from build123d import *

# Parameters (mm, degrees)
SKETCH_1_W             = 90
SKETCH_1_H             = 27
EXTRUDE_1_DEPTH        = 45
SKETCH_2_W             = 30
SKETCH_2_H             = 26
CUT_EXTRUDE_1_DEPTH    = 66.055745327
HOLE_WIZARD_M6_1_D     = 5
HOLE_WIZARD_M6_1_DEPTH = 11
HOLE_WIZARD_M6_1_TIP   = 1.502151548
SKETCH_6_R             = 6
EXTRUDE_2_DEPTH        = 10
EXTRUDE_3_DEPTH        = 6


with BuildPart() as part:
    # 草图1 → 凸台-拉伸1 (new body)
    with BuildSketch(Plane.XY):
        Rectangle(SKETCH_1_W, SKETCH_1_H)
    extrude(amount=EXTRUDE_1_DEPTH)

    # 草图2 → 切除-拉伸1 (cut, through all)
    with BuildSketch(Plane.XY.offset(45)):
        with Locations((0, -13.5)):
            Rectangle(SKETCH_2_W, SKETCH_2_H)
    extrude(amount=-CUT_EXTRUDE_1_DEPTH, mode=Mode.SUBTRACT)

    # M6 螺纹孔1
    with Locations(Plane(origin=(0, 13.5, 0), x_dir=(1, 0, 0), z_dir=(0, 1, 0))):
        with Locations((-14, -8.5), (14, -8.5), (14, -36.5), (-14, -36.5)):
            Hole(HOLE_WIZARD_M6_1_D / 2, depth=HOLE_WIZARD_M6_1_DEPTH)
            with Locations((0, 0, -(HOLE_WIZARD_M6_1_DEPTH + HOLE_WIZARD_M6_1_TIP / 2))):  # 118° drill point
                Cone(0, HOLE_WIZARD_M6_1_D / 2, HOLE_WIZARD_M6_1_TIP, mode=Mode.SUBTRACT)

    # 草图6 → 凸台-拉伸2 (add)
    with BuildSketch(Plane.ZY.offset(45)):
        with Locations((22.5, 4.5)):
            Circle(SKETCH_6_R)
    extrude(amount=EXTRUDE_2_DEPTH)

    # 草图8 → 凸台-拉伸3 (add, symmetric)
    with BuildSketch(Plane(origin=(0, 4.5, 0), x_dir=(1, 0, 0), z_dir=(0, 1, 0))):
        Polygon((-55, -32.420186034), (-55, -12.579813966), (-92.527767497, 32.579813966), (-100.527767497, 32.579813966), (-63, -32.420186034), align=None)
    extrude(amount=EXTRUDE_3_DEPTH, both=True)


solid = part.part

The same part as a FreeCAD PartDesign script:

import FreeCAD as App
import Part
import Sketcher

V = App.Vector
Q = App.Units.Quantity

doc = App.newDocument("Part")
body = doc.addObject("PartDesign::Body", "Body")

# Sketch on XY plane
sketch1 = body.newObject("Sketcher::SketchObject", "Sketch")
sketch1.AttachmentSupport = (doc.getObject("XY_Plane"), [""])
sketch1.MapMode = "FlatFace"
sketch1.addGeometry([
    Part.LineSegment(V(-45, 13.5, 0), V(-45, -13.5, 0)),
    Part.LineSegment(V(-45, -13.5, 0), V(45, -13.5, 0)),
    Part.LineSegment(V(45, -13.5, 0), V(45, 13.5, 0)),
    Part.LineSegment(V(45, 13.5, 0), V(-45, 13.5, 0)),
], False)
sketch1.addConstraint([
    Sketcher.Constraint("Coincident", 0, 2, 1, 1),
    Sketcher.Constraint("Coincident", 1, 2, 2, 1),
    Sketcher.Constraint("Coincident", 2, 2, 3, 1),
    Sketcher.Constraint("Coincident", 3, 2, 0, 1),
    Sketcher.Constraint("Vertical", 0),
    Sketcher.Constraint("Horizontal", 1),
    Sketcher.Constraint("Vertical", 2),
    Sketcher.Constraint("Horizontal", 3),
    Sketcher.Constraint("Symmetric", 0, 2, 2, 2, -1, 1),
    Sketcher.Constraint("DistanceX", 1, 1, 1, 2, 90.0),
    Sketcher.Constraint("DistanceY", 0, 2, 0, 1, 27.0),
])
pad1 = body.newObject("PartDesign::Pad", "Pad")
pad1.Profile = sketch1
pad1.Length = 45

# Sketch on XY plane
sketch2 = body.newObject("Sketcher::SketchObject", "Sketch001")
sketch2.AttachmentSupport = (doc.getObject("XY_Plane"), [""])
sketch2.MapMode = "FlatFace"
sketch2.AttachmentOffset = App.Placement(V(0, 0, 45), App.Rotation())
sketch2.addGeometry([
    Part.LineSegment(V(-15, -0.5, 0), V(-15, -26.5, 0)),
    Part.LineSegment(V(-15, -26.5, 0), V(15, -26.5, 0)),
    Part.LineSegment(V(15, -26.5, 0), V(15, -0.5, 0)),
    Part.LineSegment(V(15, -0.5, 0), V(-15, -0.5, 0)),
], False)
sketch2.addConstraint([
    Sketcher.Constraint("Coincident", 0, 2, 1, 1),
    Sketcher.Constraint("Coincident", 1, 2, 2, 1),
    Sketcher.Constraint("Coincident", 2, 2, 3, 1),
    Sketcher.Constraint("Coincident", 3, 2, 0, 1),
    Sketcher.Constraint("Vertical", 0),
    Sketcher.Constraint("Horizontal", 1),
    Sketcher.Constraint("Vertical", 2),
    Sketcher.Constraint("Horizontal", 3),
    Sketcher.Constraint("DistanceX", 1, 1, 1, 2, 30.0),
    Sketcher.Constraint("DistanceY", 0, 2, 0, 1, 26.0),
    Sketcher.Constraint("DistanceX", 0, 2, -1, 1, 15.0),
    Sketcher.Constraint("DistanceY", 0, 2, -1, 1, 26.5),
])
pocket1 = body.newObject("PartDesign::Pocket", "Pocket")
pocket1.Profile = sketch2
pocket1.Type = "ThroughAll"

# Sketch on XZ plane
sketch3 = body.newObject("Sketcher::SketchObject", "Sketch002")
sketch3.AttachmentSupport = (doc.getObject("XZ_Plane"), [""])
sketch3.MapMode = "FlatFace"
sketch3.AttachmentOffset = App.Placement(V(0, 0, -13.5), App.Rotation())
sketch3.addGeometry([
    Part.Circle(V(-14, 8.5, 0), V(0, 0, 1), 2.5),
    Part.Circle(V(14, 8.5, 0), V(0, 0, 1), 2.5),
    Part.Circle(V(14, 36.5, 0), V(0, 0, 1), 2.5),
    Part.Circle(V(-14, 36.5, 0), V(0, 0, 1), 2.5),
], False)
sketch3.addConstraint([
    Sketcher.Constraint("Equal", 0, 1),
    Sketcher.Constraint("Equal", 1, 2),
    Sketcher.Constraint("Equal", 2, 3),
    Sketcher.Constraint("Symmetric", 0, 3, 1, 3, -2),
    Sketcher.Constraint("Symmetric", 2, 3, 3, 3, -2),
    Sketcher.Constraint("Vertical", 1, 3, 2, 3),
    Sketcher.Constraint("Diameter", 0, 5.0),
    Sketcher.Constraint("DistanceX", 0, 3, -1, 1, 14.0),
    Sketcher.Constraint("DistanceY", 1, 3, 2, 3, 28.0),
    Sketcher.Constraint("DistanceY", -1, 1, 0, 3, 8.5),
])
doc.recompute()
hole = body.newObject("PartDesign::Hole", "Hole")
hole.Profile = sketch3
hole.ThreadType = "None"
hole.Diameter = 5
hole.DepthType = "Dimension"
hole.Depth = 11
hole.DrillPoint = "Angled"
hole.DrillPointAngle = 118
hole.Reversed = True

# Sketch on YZ plane
sketch4 = body.newObject("Sketcher::SketchObject", "Sketch003")
sketch4.AttachmentSupport = (doc.getObject("YZ_Plane"), [""])
sketch4.MapMode = "FlatFace"
sketch4.AttachmentOffset = App.Placement(V(0, 0, -45), App.Rotation())
sketch4.addGeometry(Part.Circle(V(4.5, 22.5, 0), V(0, 0, 1), 6), False)
sketch4.addConstraint([
    Sketcher.Constraint("Diameter", 0, 12.0),
    Sketcher.Constraint("DistanceX", -1, 1, 0, 3, 4.5),
    Sketcher.Constraint("DistanceY", -1, 1, 0, 3, 22.5),
])
pad2 = body.newObject("PartDesign::Pad", "Pad001")
pad2.Profile = sketch4
pad2.Length = 10
pad2.Reversed = True

# Sketch on XZ plane
sketch5 = body.newObject("Sketcher::SketchObject", "Sketch004")
sketch5.AttachmentSupport = (doc.getObject("XZ_Plane"), [""])
sketch5.MapMode = "FlatFace"
sketch5.AttachmentOffset = App.Placement(V(0, 0, -4.5), App.Rotation())
sketch5.addGeometry([
    Part.LineSegment(V(-55, 32.420186, 0), V(-55, 12.579814, 0)),  # 0
    Part.LineSegment(V(-55, 12.579814, 0), V(-92.527767, -32.579814, 0)),  # 1
    Part.LineSegment(V(-92.527767, -32.579814, 0), V(-100.527767, -32.579814, 0)),  # 2
    Part.LineSegment(V(-100.527767, -32.579814, 0), V(-63, 32.420186, 0)),  # 3
    Part.LineSegment(V(-63, 32.420186, 0), V(-55, 32.420186, 0)),  # 4
], False)
sketch5.addConstraint([
    Sketcher.Constraint("Coincident", 0, 2, 1, 1),
    Sketcher.Constraint("Coincident", 1, 2, 2, 1),
    Sketcher.Constraint("Coincident", 2, 2, 3, 1),
    Sketcher.Constraint("Coincident", 3, 2, 4, 1),
    Sketcher.Constraint("Coincident", 4, 2, 0, 1),
    Sketcher.Constraint("Vertical", 0),
    Sketcher.Constraint("Horizontal", 2),
    Sketcher.Constraint("Horizontal", 4),
    Sketcher.Constraint("Equal", 2, 4),
    Sketcher.Constraint("DistanceX", 2, 2, 2, 1, 8.0),
    Sketcher.Constraint("Angle", 3, Q("60 deg")),
    Sketcher.Constraint("DistanceX", 0, 2, -1, 1, 55.0),
    Sketcher.Constraint("DistanceY", 1, 2, 3, 2, 65.0),
    Sketcher.Constraint("DistanceY", 0, 2, 0, 1, 19.840372),
    Sketcher.Constraint("DistanceY", -1, 1, 0, 2, 12.579814),
])
pad3 = body.newObject("PartDesign::Pad", "Pad002")
pad3.Profile = sketch5
pad3.Length = 12
pad3.Midplane = True

doc.recompute()
